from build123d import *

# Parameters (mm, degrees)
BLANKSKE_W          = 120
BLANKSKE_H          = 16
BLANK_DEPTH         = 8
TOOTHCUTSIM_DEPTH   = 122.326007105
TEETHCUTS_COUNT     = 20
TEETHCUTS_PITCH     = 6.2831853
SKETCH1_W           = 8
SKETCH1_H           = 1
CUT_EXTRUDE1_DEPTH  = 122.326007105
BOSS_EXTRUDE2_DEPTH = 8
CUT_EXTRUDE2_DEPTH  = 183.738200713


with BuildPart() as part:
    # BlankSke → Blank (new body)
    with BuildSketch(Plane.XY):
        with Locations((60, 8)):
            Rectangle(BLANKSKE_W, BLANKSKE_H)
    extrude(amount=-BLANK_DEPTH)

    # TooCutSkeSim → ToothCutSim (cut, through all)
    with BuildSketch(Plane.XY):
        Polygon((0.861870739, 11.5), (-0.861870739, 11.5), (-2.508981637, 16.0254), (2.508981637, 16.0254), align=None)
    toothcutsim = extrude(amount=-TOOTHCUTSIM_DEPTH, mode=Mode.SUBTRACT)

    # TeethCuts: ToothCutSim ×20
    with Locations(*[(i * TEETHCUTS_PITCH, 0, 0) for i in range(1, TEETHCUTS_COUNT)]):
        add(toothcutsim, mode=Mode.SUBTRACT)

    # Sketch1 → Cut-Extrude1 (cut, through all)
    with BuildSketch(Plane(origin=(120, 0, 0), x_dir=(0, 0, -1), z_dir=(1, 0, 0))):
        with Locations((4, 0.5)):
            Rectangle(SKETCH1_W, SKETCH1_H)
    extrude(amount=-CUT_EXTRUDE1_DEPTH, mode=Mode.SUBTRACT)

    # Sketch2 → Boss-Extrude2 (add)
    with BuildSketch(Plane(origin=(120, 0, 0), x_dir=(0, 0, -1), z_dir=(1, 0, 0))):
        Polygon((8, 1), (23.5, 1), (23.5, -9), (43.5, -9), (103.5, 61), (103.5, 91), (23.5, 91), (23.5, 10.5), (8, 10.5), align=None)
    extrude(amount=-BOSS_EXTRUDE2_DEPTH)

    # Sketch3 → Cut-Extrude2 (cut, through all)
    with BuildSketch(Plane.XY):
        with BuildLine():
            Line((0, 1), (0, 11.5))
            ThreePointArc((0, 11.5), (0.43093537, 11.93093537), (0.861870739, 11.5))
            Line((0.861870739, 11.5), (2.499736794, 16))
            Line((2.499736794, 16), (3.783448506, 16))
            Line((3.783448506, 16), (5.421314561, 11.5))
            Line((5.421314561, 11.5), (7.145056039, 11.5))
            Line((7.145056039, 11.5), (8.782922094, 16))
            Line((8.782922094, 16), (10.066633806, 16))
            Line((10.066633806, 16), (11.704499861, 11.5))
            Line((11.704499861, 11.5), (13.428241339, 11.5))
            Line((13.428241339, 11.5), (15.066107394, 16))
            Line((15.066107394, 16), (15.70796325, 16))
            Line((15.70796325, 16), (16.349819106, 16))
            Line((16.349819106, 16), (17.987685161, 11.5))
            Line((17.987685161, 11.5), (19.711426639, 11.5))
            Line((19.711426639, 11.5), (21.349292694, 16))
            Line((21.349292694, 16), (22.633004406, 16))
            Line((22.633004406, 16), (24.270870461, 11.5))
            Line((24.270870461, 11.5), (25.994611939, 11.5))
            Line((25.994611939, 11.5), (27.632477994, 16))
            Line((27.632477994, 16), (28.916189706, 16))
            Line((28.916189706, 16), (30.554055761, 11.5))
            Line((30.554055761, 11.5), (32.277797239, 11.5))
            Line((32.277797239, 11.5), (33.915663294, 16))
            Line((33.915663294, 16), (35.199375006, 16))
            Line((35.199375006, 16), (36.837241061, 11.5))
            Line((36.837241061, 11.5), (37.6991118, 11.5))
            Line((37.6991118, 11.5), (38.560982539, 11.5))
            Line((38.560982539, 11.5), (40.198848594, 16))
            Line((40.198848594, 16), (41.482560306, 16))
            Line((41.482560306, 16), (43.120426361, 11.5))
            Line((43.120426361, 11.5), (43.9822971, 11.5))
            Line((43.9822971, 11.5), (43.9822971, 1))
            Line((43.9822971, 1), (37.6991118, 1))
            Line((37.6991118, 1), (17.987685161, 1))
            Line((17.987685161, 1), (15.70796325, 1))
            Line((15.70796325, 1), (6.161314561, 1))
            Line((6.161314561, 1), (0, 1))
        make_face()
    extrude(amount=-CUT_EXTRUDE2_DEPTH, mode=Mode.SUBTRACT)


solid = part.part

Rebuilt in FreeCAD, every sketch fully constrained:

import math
import FreeCAD as App
import Part
import Sketcher
from FreeCAD import Vector
Q = App.Units.Quantity


def add_polygon(sketch, points):
    """Adds a closed chain of lines whose ends are joined by coincident constraints."""
    first, n = sketch.GeometryCount, len(points)
    for a, b in zip(points, points[1:] + points[:1]):
        sketch.addGeometry(Part.LineSegment(App.Vector(*a, 0), App.Vector(*b, 0)), False)
    for i in range(n):
        sketch.addConstraint(Sketcher.Constraint("Coincident", first + i, 2, first + (i + 1) % n, 1))

doc = App.newDocument("Part")
body = doc.addObject("PartDesign::Body", "Body")

sketch1 = body.newObject("Sketcher::SketchObject", "Sketch")
sketch1.AttachmentSupport = (doc.getObject("XY_Plane"), [""])
sketch1.MapMode = "FlatFace"
add_polygon(sketch1, [(0, 16), (0, 0), (120, 0), (120, 16)])
sketch1.addConstraint([
    Sketcher.Constraint("Vertical", 0),
    Sketcher.Constraint("Horizontal", 1),
    Sketcher.Constraint("Vertical", 2),
    Sketcher.Constraint("Horizontal", 3),
    Sketcher.Constraint("Coincident", 0, 2, -1, 1),
    Sketcher.Constraint("DistanceX", 1, 1, 1, 2, 120.0),
    Sketcher.Constraint("DistanceY", 0, 2, 0, 1, 16.0),
])
pad1 = body.newObject("PartDesign::Pad", "Pad")
pad1.Profile = sketch1
pad1.Length = 8
pad1.Reversed = True

sketch2 = body.newObject("Sketcher::SketchObject", "Sketch001")
sketch2.AttachmentSupport = (doc.getObject("XY_Plane"), [""])
sketch2.MapMode = "FlatFace"
add_polygon(sketch2, [(-0.861871, 11.5), (0.861871, 11.5), (2.508982, 16.0254), (-2.508982, 16.0254)])
sketch2.addConstraint([
    Sketcher.Constraint("Horizontal", 0),
    Sketcher.Constraint("Horizontal", 2),
    Sketcher.Constraint("Equal", 1, 3),
    Sketcher.Constraint("Angle", 1, Q("70 deg")),
    Sketcher.Constraint("DistanceY", -1, 1, 0, 2, 11.5),
    Sketcher.Constraint("DistanceX", 0, 1, 0, 2, 1.723741),
    Sketcher.Constraint("DistanceY", -1, 1, 1, 2, 16.0254),
    Sketcher.Constraint("DistanceX", -1, 1, 0, 2, 0.861871),
])
pocket1 = body.newObject("PartDesign::Pocket", "Pocket")
pocket1.Profile = sketch2
pocket1.Type = "ThroughAll"
doc.recompute()

linearpattern = body.newObject("PartDesign::LinearPattern", "LinearPattern")
linearpattern.Originals = [pocket1]
linearpattern.Direction = (doc.getObject("X_Axis"), [""])
linearpattern.Mode = "offset"
linearpattern.Offset = 6.283185
linearpattern.Occurrences = 20
body.Tip = linearpattern

sketch3 = body.newObject("Sketcher::SketchObject", "Sketch002")
sketch3.AttachmentSupport = (doc.getObject("YZ_Plane"), [""])
sketch3.MapMode = "FlatFace"
sketch3.AttachmentOffset = App.Placement(Vector(0, 0, 120), App.Rotation())
add_polygon(sketch3, [(1, 0), (0, 0), (0, -8), (1, -8)])
sketch3.addConstraint([
    Sketcher.Constraint("Horizontal", 0),
    Sketcher.Constraint("Vertical", 1),
    Sketcher.Constraint("Horizontal", 2),
    Sketcher.Constraint("Vertical", 3),
    Sketcher.Constraint("Coincident", 0, 2, -1, 1),
    Sketcher.Constraint("DistanceX", 0, 2, 0, 1, 1.0),
    Sketcher.Constraint("DistanceY", 1, 2, 1, 1, 8.0),
])
pocket2 = body.newObject("PartDesign::Pocket", "Pocket001")
pocket2.Profile = sketch3
pocket2.Type = "ThroughAll"

sketch4 = body.newObject("Sketcher::SketchObject", "Sketch003")
sketch4.AttachmentSupport = (doc.getObject("YZ_Plane"), [""])
sketch4.MapMode = "FlatFace"
sketch4.AttachmentOffset = App.Placement(Vector(0, 0, 120), App.Rotation())
add_polygon(sketch4, [(1, -8), (1, -23.5), (-9, -23.5), (-9, -43.5), (61, -103.5), (91, -103.5), (91, -23.5), (10.5, -23.5), (10.5, -8)])
sketch4.addConstraint([
    Sketcher.Constraint("Vertical", 0),
    Sketcher.Constraint("Horizontal", 1),
    Sketcher.Constraint("Vertical", 2),
    Sketcher.Constraint("Horizontal", 4),
    Sketcher.Constraint("Vertical", 5),
    Sketcher.Constraint("Horizontal", 6),
    Sketcher.Constraint("Vertical", 7),
    Sketcher.Constraint("Horizontal", 8),
    Sketcher.Constraint("Horizontal", 1, 2, 5, 2),
    Sketcher.Constraint("DistanceX", 1, 2, 1, 1, 10.0),
    Sketcher.Constraint("DistanceX", 4, 1, 4, 2, 30.0),
    Sketcher.Constraint("DistanceY", 2, 2, 2, 1, 20.0),
    Sketcher.Constraint("DistanceY", 5, 1, 5, 2, 80.0),
    Sketcher.Constraint("DistanceX", 6, 2, 6, 1, 80.5),
    Sketcher.Constraint("DistanceX", 8, 2, 8, 1, 9.5),
    Sketcher.Constraint("DistanceY", 0, 2, 0, 1, 15.5),
    Sketcher.Constraint("DistanceX", -1, 1, 0, 2, 1.0),
    Sketcher.Constraint("DistanceY", 7, 2, -1, 1, 8.0),
])
pad2 = body.newObject("PartDesign::Pad", "Pad001")
pad2.Profile = sketch4
pad2.Length = 8
pad2.Reversed = True

sketch5 = body.newObject("Sketcher::SketchObject", "Sketch004")
sketch5.AttachmentSupport = (doc.getObject("XY_Plane"), [""])
sketch5.MapMode = "FlatFace"
sketch5.addGeometry([
    Part.LineSegment(Vector(0, 11.5, 0), Vector(0, 1, 0)),
    Part.LineSegment(Vector(0, 1, 0), Vector(43.982297, 1, 0)),
    Part.LineSegment(Vector(43.982297, 1, 0), Vector(43.982297, 11.5, 0)),
    Part.LineSegment(Vector(43.982297, 11.5, 0), Vector(43.120426, 11.5, 0)),
    Part.LineSegment(Vector(43.120426, 11.5, 0), Vector(41.48256, 16, 0)),
    Part.LineSegment(Vector(41.48256, 16, 0), Vector(40.198849, 16, 0)),
    Part.LineSegment(Vector(40.198849, 16, 0), Vector(38.560983, 11.5, 0)),
    Part.LineSegment(Vector(38.560983, 11.5, 0), Vector(36.837241, 11.5, 0)),
    Part.LineSegment(Vector(36.837241, 11.5, 0), Vector(35.199375, 16, 0)),
    Part.LineSegment(Vector(35.199375, 16, 0), Vector(33.915663, 16, 0)),
    Part.LineSegment(Vector(33.915663, 16, 0), Vector(32.277797, 11.5, 0)),
    Part.LineSegment(Vector(32.277797, 11.5, 0), Vector(30.554056, 11.5, 0)),
    Part.LineSegment(Vector(30.554056, 11.5, 0), Vector(28.91619, 16, 0)),
    Part.LineSegment(Vector(28.91619, 16, 0), Vector(27.632478, 16, 0)),
    Part.LineSegment(Vector(27.632478, 16, 0), Vector(25.994612, 11.5, 0)),
    Part.LineSegment(Vector(25.994612, 11.5, 0), Vector(24.27087, 11.5, 0)),
    Part.LineSegment(Vector(24.27087, 11.5, 0), Vector(22.633004, 16, 0)),
    Part.LineSegment(Vector(22.633004, 16, 0), Vector(21.349293, 16, 0)),
    Part.LineSegment(Vector(21.349293, 16, 0), Vector(19.711427, 11.5, 0)),
    Part.LineSegment(Vector(19.711427, 11.5, 0), Vector(17.987685, 11.5, 0)),
    Part.LineSegment(Vector(17.987685, 11.5, 0), Vector(16.349819, 16, 0)),
    Part.LineSegment(Vector(16.349819, 16, 0), Vector(15.066107, 16, 0)),
    Part.LineSegment(Vector(15.066107, 16, 0), Vector(13.428241, 11.5, 0)),
    Part.LineSegment(Vector(13.428241, 11.5, 0), Vector(11.7045, 11.5, 0)),
    Part.LineSegment(Vector(11.7045, 11.5, 0), Vector(10.066634, 16, 0)),
    Part.LineSegment(Vector(10.066634, 16, 0), Vector(8.782922, 16, 0)),
    Part.LineSegment(Vector(8.782922, 16, 0), Vector(7.145056, 11.5, 0)),
    Part.LineSegment(Vector(7.145056, 11.5, 0), Vector(5.421315, 11.5, 0)),
    Part.LineSegment(Vector(5.421315, 11.5, 0), Vector(3.783449, 16, 0)),
    Part.LineSegment(Vector(3.783449, 16, 0), Vector(2.499737, 16, 0)),
    Part.LineSegment(Vector(2.499737, 16, 0), Vector(0.861871, 11.5, 0)),
    Part.ArcOfCircle(Part.Circle(Vector(0.430935, 11.5, 0), Vector(0, 0, 1), 0.430935), math.radians(0), math.radians(180)),
], False)
sketch5.addConstraint([
    Sketcher.Constraint("Coincident", 0, 2, 1, 1),
    Sketcher.Constraint("Coincident", 1, 2, 2, 1),
    Sketcher.Constraint("Coincident", 2, 2, 3, 1),
    Sketcher.Constraint("Coincident", 3, 2, 4, 1),
    Sketcher.Constraint("Coincident", 4, 2, 5, 1),
    Sketcher.Constraint("Coincident", 5, 2, 6, 1),
    Sketcher.Constraint("Coincident", 6, 2, 7, 1),
    Sketcher.Constraint("Coincident", 7, 2, 8, 1),
    Sketcher.Constraint("Coincident", 8, 2, 9, 1),
    Sketcher.Constraint("Coincident", 9, 2, 10, 1),
    Sketcher.Constraint("Coincident", 10, 2, 11, 1),
    Sketcher.Constraint("Coincident", 11, 2, 12, 1),
    Sketcher.Constraint("Coincident", 12, 2, 13, 1),
    Sketcher.Constraint("Coincident", 13, 2, 14, 1),
    Sketcher.Constraint("Coincident", 14, 2, 15, 1),
    Sketcher.Constraint("Coincident", 15, 2, 16, 1),
    Sketcher.Constraint("Coincident", 16, 2, 17, 1),
    Sketcher.Constraint("Coincident", 17, 2, 18, 1),
    Sketcher.Constraint("Coincident", 18, 2, 19, 1),
    Sketcher.Constraint("Coincident", 19, 2, 20, 1),
    Sketcher.Constraint("Coincident", 20, 2, 21, 1),
    Sketcher.Constraint("Coincident", 21, 2, 22, 1),
    Sketcher.Constraint("Coincident", 22, 2, 23, 1),
    Sketcher.Constraint("Coincident", 23, 2, 24, 1),
    Sketcher.Constraint("Coincident", 24, 2, 25, 1),
    Sketcher.Constraint("Coincident", 25, 2, 26, 1),
    Sketcher.Constraint("Coincident", 26, 2, 27, 1),
    Sketcher.Constraint("Coincident", 27, 2, 28, 1),
    Sketcher.Constraint("Coincident", 28, 2, 29, 1),
    Sketcher.Constraint("Coincident", 29, 2, 30, 1),
    Sketcher.Constraint("Coincident", 30, 2, 31, 1),
    Sketcher.Constraint("Tangent", 31, 2, 0, 1),
    Sketcher.Constraint("Vertical", 0),
    Sketcher.Constraint("Horizontal", 1),
    Sketcher.Constraint("Vertical", 2),
    Sketcher.Constraint("Horizontal", 3),
    Sketcher.Constraint("Horizontal", 5),
    Sketcher.Constraint("Horizontal", 7),
    Sketcher.Constraint("Horizontal", 9),
    Sketcher.Constraint("Horizontal", 11),
    Sketcher.Constraint("Horizontal", 13),
    Sketcher.Constraint("Horizontal", 15),
    Sketcher.Constraint("Horizontal", 17),
    Sketcher.Constraint("Horizontal", 19),
    Sketcher.Constraint("Horizontal", 21),
    Sketcher.Constraint("Horizontal", 23),
    Sketcher.Constraint("Horizontal", 25),
    Sketcher.Constraint("Horizontal", 27),
    Sketcher.Constraint("Horizontal", 29),
    Sketcher.Constraint("PointOnObject", 0, 2, -2),
    Sketcher.Constraint("Parallel", 4, 8),
    Sketcher.Constraint("Parallel", 6, 10),
    Sketcher.Constraint("Parallel", 8, 12),
    Sketcher.Constraint("Parallel", 10, 14),
    Sketcher.Constraint("Parallel", 12, 16),
    Sketcher.Constraint("Parallel", 14, 18),
    Sketcher.Constraint("Parallel", 16, 20),
    Sketcher.Constraint("Parallel", 18, 22),
    Sketcher.Constraint("Parallel", 20, 24),
    Sketcher.Constraint("Parallel", 22, 26),
    Sketcher.Constraint("Parallel", 24, 28),
    Sketcher.Constraint("Parallel", 26, 30),
    Sketcher.Constraint("Horizontal", 31, 3, 2, 2),
    Sketcher.Constraint("Horizontal", 3, 2, 6, 2),
    Sketcher.Constraint("Horizontal", 5, 2, 8, 2),
    Sketcher.Constraint("Horizontal", 7, 2, 10, 2),
    Sketcher.Constraint("Horizontal", 9, 2, 12, 2),
    Sketcher.Constraint("Horizontal", 11, 2, 14, 2),
    Sketcher.Constraint("Horizontal", 13, 2, 16, 2),
    Sketcher.Constraint("Horizontal", 15, 2, 18, 2),
    Sketcher.Constraint("Horizontal", 17, 2, 20, 2),
    Sketcher.Constraint("Horizontal", 19, 2, 22, 2),
    Sketcher.Constraint("Horizontal", 21, 2, 24, 2),
    Sketcher.Constraint("Horizontal", 23, 2, 26, 2),
    Sketcher.Constraint("Horizontal", 25, 2, 28, 2),
    Sketcher.Constraint("Horizontal", 27, 2, 30, 2),
    Sketcher.Constraint("Equal", 5, 9),
    Sketcher.Constraint("Equal", 7, 11),
    Sketcher.Constraint("Equal", 9, 13),
    Sketcher.Constraint("Equal", 11, 15),
    Sketcher.Constraint("Equal", 13, 17),
    Sketcher.Constraint("Equal", 15, 19),
    Sketcher.Constraint("Equal", 17, 21),
    Sketcher.Constraint("Equal", 19, 23),
    Sketcher.Constraint("Equal", 21, 25),
    Sketcher.Constraint("Equal", 23, 27),
    Sketcher.Constraint("Equal", 25, 29),
    Sketcher.Constraint("Equal", 4, 6),
    Sketcher.Constraint("Angle", 4, Q("110 deg")),
    Sketcher.Constraint("DistanceY", 0, 2, 0, 1, 10.5),
    Sketcher.Constraint("DistanceY", -1, 1, 0, 2, 1.0),
    Sketcher.Constraint("DistanceY", -1, 1, 4, 2, 16.0),
    Sketcher.Constraint("Radius", 31, 0.430935),
    Sketcher.Constraint("DistanceX", 3, 2, 3, 1, 0.861871),
    Sketcher.Constraint("DistanceX", 5, 2, 5, 1, 1.283712),
    Sketcher.Constraint("DistanceX", 7, 2, 7, 1, 1.723741),
])
pocket3 = body.newObject("PartDesign::Pocket", "Pocket002")
pocket3.Profile = sketch5
pocket3.Type = "ThroughAll"

doc.recompute()
